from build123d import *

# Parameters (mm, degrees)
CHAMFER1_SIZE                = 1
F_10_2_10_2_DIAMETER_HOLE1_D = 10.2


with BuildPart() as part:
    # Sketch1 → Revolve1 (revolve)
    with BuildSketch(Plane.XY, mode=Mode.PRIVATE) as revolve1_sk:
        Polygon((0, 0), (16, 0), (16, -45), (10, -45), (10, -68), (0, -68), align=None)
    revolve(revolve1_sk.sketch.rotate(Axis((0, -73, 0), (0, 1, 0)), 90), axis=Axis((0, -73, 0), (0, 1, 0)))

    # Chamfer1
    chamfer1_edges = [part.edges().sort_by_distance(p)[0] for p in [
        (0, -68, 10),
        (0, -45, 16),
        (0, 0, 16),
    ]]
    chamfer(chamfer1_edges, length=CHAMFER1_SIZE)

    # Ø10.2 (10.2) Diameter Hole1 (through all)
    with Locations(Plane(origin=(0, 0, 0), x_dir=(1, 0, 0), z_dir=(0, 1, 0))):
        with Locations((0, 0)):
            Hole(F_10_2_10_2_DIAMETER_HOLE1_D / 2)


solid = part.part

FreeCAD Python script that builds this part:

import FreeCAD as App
import Part
import Sketcher

V = App.Vector


def edges_at(feature, points):
    """Names of the edges that pass closest to the given points."""
    edges = feature.Shape.Edges
    near = lambda p: min(range(len(edges)), key=lambda i: edges[i].distToShape(Part.Vertex(*p))[0])
    return sorted({f"Edge{near(p) + 1}" for p in points})


def add_polygon(sketch, points):
    """Adds a closed chain of lines whose ends are joined by coincident constraints."""
    first, n = sketch.GeometryCount, len(points)
    for a, b in zip(points, points[1:] + points[:1]):
        sketch.addGeometry(Part.LineSegment(App.Vector(*a, 0), App.Vector(*b, 0)), False)
    for i in range(n):
        sketch.addConstraint(Sketcher.Constraint("Coincident", first + i, 2, first + (i + 1) % n, 1))

doc = App.newDocument("Part")
body = doc.addObject("PartDesign::Body", "Body")

# Sketch on XY plane
sketch1 = doc.addObject("Sketcher::SketchObject", "Sketch")
body.addObject(sketch1)
sketch1.AttachmentSupport = (doc.XY_Plane, [""])
sketch1.MapMode = "FlatFace"
add_polygon(sketch1, [(16, 0), (0, 0), (0, -68), (10, -68), (10, -45), (16, -45)])  # lines 0-5
sketch1.addConstraint([
    Sketcher.Constraint("Horizontal", 0),
    Sketcher.Constraint("Vertical", 1),
    Sketcher.Constraint("Horizontal", 2),
    Sketcher.Constraint("Vertical", 3),
    Sketcher.Constraint("Horizontal", 4),
    Sketcher.Constraint("Vertical", 5),
    Sketcher.Constraint("Coincident", 0, 2, -1, 1),
    Sketcher.Constraint("DistanceX", 0, 2, 0, 1, 16.0),
    Sketcher.Constraint("DistanceX", 2, 1, 2, 2, 10.0),
    Sketcher.Constraint("DistanceY", 1, 2, 1, 1, 68.0),
    Sketcher.Constraint("DistanceY", 3, 1, 3, 2, 23.0),
])
revolution = doc.addObject("PartDesign::Revolution", "Revolution")
body.addObject(revolution)
revolution.Profile = sketch1
revolution.ReferenceAxis = (sketch1, ["V_Axis"])
revolution.Angle = 360
doc.recompute()

chamfer = doc.addObject("PartDesign::Chamfer", "Chamfer")
body.addObject(chamfer)
chamfer.Base = (revolution, edges_at(revolution, [(0, -68, 10), (0, -45, 16), (0, 0, 16)]))
chamfer.Size = 1

# Sketch on XZ plane
sketch2 = doc.addObject("Sketcher::SketchObject", "Sketch001")
body.addObject(sketch2)
sketch2.AttachmentSupport = (doc.XZ_Plane, [""])
sketch2.MapMode = "FlatFace"
sketch2.addGeometry(Part.Circle(V(0, 0, 0), V(0, 0, 1), 5), False)
sketch2.addConstraint([
    Sketcher.Constraint("Coincident", 0, 3, -1, 1),
    Sketcher.Constraint("Diameter", 0, 10.2),
])
doc.recompute()
hole = doc.addObject("PartDesign::Hole", "Hole")
body.addObject(hole)
hole.Profile = sketch2
hole.ThreadType = "None"
hole.Diameter = 10.2
hole.DepthType = "ThroughAll"
hole.Reversed = True

doc.recompute()
